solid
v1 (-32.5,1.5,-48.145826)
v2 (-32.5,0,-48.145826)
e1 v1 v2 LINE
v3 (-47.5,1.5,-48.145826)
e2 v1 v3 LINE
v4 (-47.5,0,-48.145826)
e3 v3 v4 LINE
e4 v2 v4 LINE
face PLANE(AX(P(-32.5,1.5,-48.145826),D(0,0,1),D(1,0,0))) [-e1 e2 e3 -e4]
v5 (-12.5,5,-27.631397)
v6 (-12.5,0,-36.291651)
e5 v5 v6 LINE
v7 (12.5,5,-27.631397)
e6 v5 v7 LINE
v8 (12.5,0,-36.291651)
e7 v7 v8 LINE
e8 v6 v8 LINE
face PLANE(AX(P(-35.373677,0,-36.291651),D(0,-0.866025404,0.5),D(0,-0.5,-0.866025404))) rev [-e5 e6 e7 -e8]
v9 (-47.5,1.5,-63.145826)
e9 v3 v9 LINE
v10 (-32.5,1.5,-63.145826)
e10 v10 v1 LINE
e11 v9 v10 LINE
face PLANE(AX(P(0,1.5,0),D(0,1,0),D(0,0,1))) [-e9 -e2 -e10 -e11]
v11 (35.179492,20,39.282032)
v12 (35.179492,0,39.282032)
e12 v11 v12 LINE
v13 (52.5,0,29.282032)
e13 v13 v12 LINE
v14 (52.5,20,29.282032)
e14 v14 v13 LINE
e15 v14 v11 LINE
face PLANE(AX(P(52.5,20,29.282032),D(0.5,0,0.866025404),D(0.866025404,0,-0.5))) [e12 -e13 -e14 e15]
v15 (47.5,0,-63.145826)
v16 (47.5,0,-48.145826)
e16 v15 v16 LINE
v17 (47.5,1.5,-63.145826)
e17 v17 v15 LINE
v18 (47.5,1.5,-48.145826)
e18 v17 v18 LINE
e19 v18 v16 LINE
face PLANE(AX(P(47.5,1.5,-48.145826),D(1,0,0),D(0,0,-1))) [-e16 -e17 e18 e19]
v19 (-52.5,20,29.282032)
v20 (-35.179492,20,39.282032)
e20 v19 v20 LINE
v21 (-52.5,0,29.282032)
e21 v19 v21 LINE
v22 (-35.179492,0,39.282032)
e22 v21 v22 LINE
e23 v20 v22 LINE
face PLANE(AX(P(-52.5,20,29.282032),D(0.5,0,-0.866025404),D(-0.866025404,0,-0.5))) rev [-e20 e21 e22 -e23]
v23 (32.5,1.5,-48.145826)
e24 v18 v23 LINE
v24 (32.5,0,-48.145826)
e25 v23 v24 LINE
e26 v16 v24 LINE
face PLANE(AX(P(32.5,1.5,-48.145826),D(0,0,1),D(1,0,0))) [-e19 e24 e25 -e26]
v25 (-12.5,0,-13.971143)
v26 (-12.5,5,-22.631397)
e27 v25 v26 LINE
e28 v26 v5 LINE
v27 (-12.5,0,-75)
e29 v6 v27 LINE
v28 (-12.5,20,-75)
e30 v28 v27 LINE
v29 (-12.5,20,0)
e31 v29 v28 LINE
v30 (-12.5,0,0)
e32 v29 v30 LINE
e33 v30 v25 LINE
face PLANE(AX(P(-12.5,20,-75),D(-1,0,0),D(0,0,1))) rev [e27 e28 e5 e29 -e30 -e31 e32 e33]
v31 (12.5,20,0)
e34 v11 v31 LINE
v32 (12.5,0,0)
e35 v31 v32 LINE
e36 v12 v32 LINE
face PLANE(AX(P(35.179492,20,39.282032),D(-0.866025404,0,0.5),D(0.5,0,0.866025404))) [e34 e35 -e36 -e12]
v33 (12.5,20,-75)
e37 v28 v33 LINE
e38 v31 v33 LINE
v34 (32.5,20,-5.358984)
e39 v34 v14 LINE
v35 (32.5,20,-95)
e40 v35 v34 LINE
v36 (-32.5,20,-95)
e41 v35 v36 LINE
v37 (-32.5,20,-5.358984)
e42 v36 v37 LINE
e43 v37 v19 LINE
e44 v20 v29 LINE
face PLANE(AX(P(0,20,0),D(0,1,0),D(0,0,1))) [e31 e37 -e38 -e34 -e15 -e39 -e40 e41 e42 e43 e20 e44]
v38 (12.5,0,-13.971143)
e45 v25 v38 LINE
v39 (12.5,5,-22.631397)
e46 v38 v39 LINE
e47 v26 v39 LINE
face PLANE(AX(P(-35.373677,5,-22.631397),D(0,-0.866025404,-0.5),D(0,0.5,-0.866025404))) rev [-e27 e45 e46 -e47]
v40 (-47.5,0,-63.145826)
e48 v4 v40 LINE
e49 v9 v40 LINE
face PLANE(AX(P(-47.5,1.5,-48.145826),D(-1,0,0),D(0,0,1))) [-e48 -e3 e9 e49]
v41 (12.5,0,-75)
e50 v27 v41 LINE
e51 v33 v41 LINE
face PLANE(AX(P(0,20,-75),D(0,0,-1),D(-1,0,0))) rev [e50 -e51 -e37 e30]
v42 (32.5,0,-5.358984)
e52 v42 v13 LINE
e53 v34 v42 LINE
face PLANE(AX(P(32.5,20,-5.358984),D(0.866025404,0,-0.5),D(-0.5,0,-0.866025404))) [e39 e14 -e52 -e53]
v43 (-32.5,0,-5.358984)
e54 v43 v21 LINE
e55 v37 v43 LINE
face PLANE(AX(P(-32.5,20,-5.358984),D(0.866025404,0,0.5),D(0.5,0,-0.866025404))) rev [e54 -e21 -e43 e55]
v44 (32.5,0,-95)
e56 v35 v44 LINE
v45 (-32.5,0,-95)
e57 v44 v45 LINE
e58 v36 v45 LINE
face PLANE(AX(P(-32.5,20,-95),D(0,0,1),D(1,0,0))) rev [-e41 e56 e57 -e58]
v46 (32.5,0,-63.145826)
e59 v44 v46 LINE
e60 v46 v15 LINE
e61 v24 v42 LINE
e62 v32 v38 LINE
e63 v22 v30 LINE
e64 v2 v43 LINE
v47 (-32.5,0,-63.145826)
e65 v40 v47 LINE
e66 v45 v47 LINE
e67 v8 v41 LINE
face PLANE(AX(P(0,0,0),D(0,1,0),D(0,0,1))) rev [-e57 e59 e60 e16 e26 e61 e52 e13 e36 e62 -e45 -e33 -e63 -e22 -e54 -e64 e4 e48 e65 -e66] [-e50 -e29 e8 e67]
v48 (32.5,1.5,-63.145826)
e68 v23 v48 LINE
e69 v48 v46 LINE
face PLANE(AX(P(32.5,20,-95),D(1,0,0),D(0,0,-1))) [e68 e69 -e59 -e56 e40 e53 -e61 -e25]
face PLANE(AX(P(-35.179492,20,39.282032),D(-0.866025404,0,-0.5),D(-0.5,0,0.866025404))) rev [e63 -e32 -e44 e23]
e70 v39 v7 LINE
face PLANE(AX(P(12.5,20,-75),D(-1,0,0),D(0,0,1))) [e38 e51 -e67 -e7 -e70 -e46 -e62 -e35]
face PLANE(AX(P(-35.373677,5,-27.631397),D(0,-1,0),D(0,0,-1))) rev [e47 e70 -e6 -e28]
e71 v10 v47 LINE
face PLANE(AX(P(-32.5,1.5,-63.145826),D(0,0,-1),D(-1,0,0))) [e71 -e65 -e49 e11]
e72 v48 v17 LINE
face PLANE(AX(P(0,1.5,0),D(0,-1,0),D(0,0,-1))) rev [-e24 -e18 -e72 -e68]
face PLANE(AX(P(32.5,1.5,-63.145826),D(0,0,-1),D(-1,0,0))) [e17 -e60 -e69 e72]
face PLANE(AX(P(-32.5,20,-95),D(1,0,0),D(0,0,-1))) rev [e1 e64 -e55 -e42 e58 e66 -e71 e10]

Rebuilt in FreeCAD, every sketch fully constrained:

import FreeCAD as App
import Part
import Sketcher
Q = App.Units.Quantity

doc = App.newDocument("Part")
body = doc.addObject("PartDesign::Body", "Body")

sketch1 = body.newObject("Sketcher::SketchObject", "Sketch")
sketch1.AttachmentSupport = (doc.getObject("XZ_Plane"), [""])
sketch1.MapMode = "FlatFace"
sketch1.addGeometry(Part.LineSegment(App.Vector(-35, 39, 0), App.Vector(-12, 0, 0)), False)
sketch1.addGeometry(Part.LineSegment(App.Vector(-12, 0, 0), App.Vector(-12, -75, 0)), False)
sketch1.addGeometry(Part.LineSegment(App.Vector(-12, -75, 0), App.Vector(0, -75, 0)), False)
sketch1.addGeometry(Part.LineSegment(App.Vector(0, -75, 0), App.Vector(0, -95, 0)), False)
sketch1.addGeometry(Part.LineSegment(App.Vector(0, -95, 0), App.Vector(-32, -95, 0)), False)
sketch1.addGeometry(Part.LineSegment(App.Vector(-32, -95, 0), App.Vector(-32, -5, 0)), False)
sketch1.addGeometry(Part.LineSegment(App.Vector(-32, -5, 0), App.Vector(-52, 29, 0)), False)
sketch1.addGeometry(Part.LineSegment(App.Vector(-52, 29, 0), App.Vector(-35, 39, 0)), False)
sketch1.addConstraint(Sketcher.Constraint("Coincident", 0, 2, 1, 1))
sketch1.addConstraint(Sketcher.Constraint("Coincident", 1, 2, 2, 1))
sketch1.addConstraint(Sketcher.Constraint("Coincident", 2, 2, 3, 1))
sketch1.addConstraint(Sketcher.Constraint("Coincident", 3, 2, 4, 1))
sketch1.addConstraint(Sketcher.Constraint("Coincident", 4, 2, 5, 1))
sketch1.addConstraint(Sketcher.Constraint("Coincident", 5, 2, 6, 1))
sketch1.addConstraint(Sketcher.Constraint("Coincident", 6, 2, 7, 1))
sketch1.addConstraint(Sketcher.Constraint("Coincident", 7, 2, 0, 1))
sketch1.addConstraint(Sketcher.Constraint("Vertical", 1))
sketch1.addConstraint(Sketcher.Constraint("Horizontal", 2))
sketch1.addConstraint(Sketcher.Constraint("Vertical", 3))
sketch1.addConstraint(Sketcher.Constraint("Horizontal", 4))
sketch1.addConstraint(Sketcher.Constraint("Vertical", 5))
sketch1.addConstraint(Sketcher.Constraint("PointOnObject", 0, 2, -1))
sketch1.addConstraint(Sketcher.Constraint("PointOnObject", 2, 2, -2))
sketch1.addConstraint(Sketcher.Constraint("Parallel", 0, 6))
sketch1.addConstraint(Sketcher.Constraint("Perpendicular", 6, 7))
sketch1.addConstraint(Sketcher.Constraint("DistanceY", 1, 2, 1, 1, 75.0))
sketch1.addConstraint(Sketcher.Constraint("DistanceY", 3, 2, 3, 1, 20.0))
sketch1.addConstraint(Sketcher.Constraint("Angle", 0, Q("-60 deg")))
sketch1.addConstraint(Sketcher.Constraint("Distance", 6, 40.0))
sketch1.addConstraint(Sketcher.Constraint("Distance", 7, 20.0))
sketch1.addConstraint(Sketcher.Constraint("DistanceX", 2, 1, 2, 2, 12.5))
sketch1.addConstraint(Sketcher.Constraint("DistanceX", 4, 2, 4, 1, 32.5))
pad1 = body.newObject("PartDesign::Pad", "Pad")
pad1.Profile = sketch1
pad1.Length = 20
pad1.Reversed = True
doc.recompute()

mirrored = body.newObject("PartDesign::Mirrored", "Mirrored")
mirrored.Originals = [pad1]
mirrored.MirrorPlane = (doc.getObject("YZ_Plane"), [""])
body.Tip = mirrored

sketch2 = body.newObject("Sketcher::SketchObject", "Sketch001")
sketch2.AttachmentSupport = (doc.getObject("YZ_Plane"), [""])
sketch2.MapMode = "FlatFace"
sketch2.AttachmentOffset = App.Placement(App.Vector(0, 0, 12.5), App.Rotation())
sketch2.addGeometry(Part.LineSegment(App.Vector(5, -28, 0), App.Vector(0, -36, 0)), False)
sketch2.addGeometry(Part.LineSegment(App.Vector(0, -36, 0), App.Vector(0, -14, 0)), False)
sketch2.addGeometry(Part.LineSegment(App.Vector(0, -14, 0), App.Vector(5, -23, 0)), False)
sketch2.addGeometry(Part.LineSegment(App.Vector(5, -23, 0), App.Vector(5, -28, 0)), False)
sketch2.addConstraint(Sketcher.Constraint("Coincident", 0, 2, 1, 1))
sketch2.addConstraint(Sketcher.Constraint("Coincident", 1, 2, 2, 1))
sketch2.addConstraint(Sketcher.Constraint("Coincident", 2, 2, 3, 1))
sketch2.addConstraint(Sketcher.Constraint("Coincident", 3, 2, 0, 1))
sketch2.addConstraint(Sketcher.Constraint("Vertical", 1))
sketch2.addConstraint(Sketcher.Constraint("Vertical", 3))
sketch2.addConstraint(Sketcher.Constraint("PointOnObject", 0, 2, -2))
sketch2.addConstraint(Sketcher.Constraint("Equal", 0, 2))
sketch2.addConstraint(Sketcher.Constraint("DistanceY", 3, 2, 3, 1, 5.0))
sketch2.addConstraint(Sketcher.Constraint("Angle", 0, Q("-120 deg")))
sketch2.addConstraint(Sketcher.Constraint("Distance", 0, 10.0))
sketch2.addConstraint(Sketcher.Constraint("DistanceY", 0, 2, -1, 1, 36.291651))
pad2 = body.newObject("PartDesign::Pad", "Pad001")
pad2.Profile = sketch2
pad2.Length = 25
pad2.Reversed = True

sketch3 = body.newObject("Sketcher::SketchObject", "Sketch002")
sketch3.AttachmentSupport = (doc.getObject("XZ_Plane"), [""])
sketch3.MapMode = "FlatFace"
sketch3.addGeometry(Part.LineSegment(App.Vector(-48, -48, 0), App.Vector(-48, -63, 0)), False)
sketch3.addGeometry(Part.LineSegment(App.Vector(-48, -63, 0), App.Vector(-32, -63, 0)), False)
sketch3.addGeometry(Part.LineSegment(App.Vector(-32, -63, 0), App.Vector(-32, -48, 0)), False)
sketch3.addGeometry(Part.LineSegment(App.Vector(-32, -48, 0), App.Vector(-48, -48, 0)), False)
sketch3.addGeometry(Part.LineSegment(App.Vector(32, -48, 0), App.Vector(32, -63, 0)), False)
sketch3.addGeometry(Part.LineSegment(App.Vector(32, -63, 0), App.Vector(48, -63, 0)), False)
sketch3.addGeometry(Part.LineSegment(App.Vector(48, -63, 0), App.Vector(48, -48, 0)), False)
sketch3.addGeometry(Part.LineSegment(App.Vector(48, -48, 0), App.Vector(32, -48, 0)), False)
sketch3.addConstraint(Sketcher.Constraint("Coincident", 0, 2, 1, 1))
sketch3.addConstraint(Sketcher.Constraint("Coincident", 1, 2, 2, 1))
sketch3.addConstraint(Sketcher.Constraint("Coincident", 2, 2, 3, 1))
sketch3.addConstraint(Sketcher.Constraint("Coincident", 3, 2, 0, 1))
sketch3.addConstraint(Sketcher.Constraint("Coincident", 4, 2, 5, 1))
sketch3.addConstraint(Sketcher.Constraint("Coincident", 5, 2, 6, 1))
sketch3.addConstraint(Sketcher.Constraint("Coincident", 6, 2, 7, 1))
sketch3.addConstraint(Sketcher.Constraint("Coincident", 7, 2, 4, 1))
sketch3.addConstraint(Sketcher.Constraint("Vertical", 0))
sketch3.addConstraint(Sketcher.Constraint("Horizontal", 1))
sketch3.addConstraint(Sketcher.Constraint("Vertical", 2))
sketch3.addConstraint(Sketcher.Constraint("Horizontal", 3))
sketch3.addConstraint(Sketcher.Constraint("Vertical", 4))
sketch3.addConstraint(Sketcher.Constraint("Horizontal", 5))
sketch3.addConstraint(Sketcher.Constraint("Vertical", 6))
sketch3.addConstraint(Sketcher.Constraint("Horizontal", 7))
sketch3.addConstraint(Sketcher.Constraint("Symmetric", 1, 2, 4, 2, -2))
sketch3.addConstraint(Sketcher.Constraint("Symmetric", 3, 2, 6, 2, -2))
sketch3.addConstraint(Sketcher.Constraint("Equal", 7, 0))
sketch3.addConstraint(Sketcher.Constraint("DistanceX", 1, 1, 1, 2, 15.0))
sketch3.addConstraint(Sketcher.Constraint("DistanceX", 1, 2, 4, 2, 65.0))
sketch3.addConstraint(Sketcher.Constraint("DistanceY", 0, 2, -1, 1, 63.145826))
pad3 = body.newObject("PartDesign::Pad", "Pad002")
pad3.Profile = sketch3
pad3.Length = 1.5
pad3.Reversed = True

doc.recompute()
